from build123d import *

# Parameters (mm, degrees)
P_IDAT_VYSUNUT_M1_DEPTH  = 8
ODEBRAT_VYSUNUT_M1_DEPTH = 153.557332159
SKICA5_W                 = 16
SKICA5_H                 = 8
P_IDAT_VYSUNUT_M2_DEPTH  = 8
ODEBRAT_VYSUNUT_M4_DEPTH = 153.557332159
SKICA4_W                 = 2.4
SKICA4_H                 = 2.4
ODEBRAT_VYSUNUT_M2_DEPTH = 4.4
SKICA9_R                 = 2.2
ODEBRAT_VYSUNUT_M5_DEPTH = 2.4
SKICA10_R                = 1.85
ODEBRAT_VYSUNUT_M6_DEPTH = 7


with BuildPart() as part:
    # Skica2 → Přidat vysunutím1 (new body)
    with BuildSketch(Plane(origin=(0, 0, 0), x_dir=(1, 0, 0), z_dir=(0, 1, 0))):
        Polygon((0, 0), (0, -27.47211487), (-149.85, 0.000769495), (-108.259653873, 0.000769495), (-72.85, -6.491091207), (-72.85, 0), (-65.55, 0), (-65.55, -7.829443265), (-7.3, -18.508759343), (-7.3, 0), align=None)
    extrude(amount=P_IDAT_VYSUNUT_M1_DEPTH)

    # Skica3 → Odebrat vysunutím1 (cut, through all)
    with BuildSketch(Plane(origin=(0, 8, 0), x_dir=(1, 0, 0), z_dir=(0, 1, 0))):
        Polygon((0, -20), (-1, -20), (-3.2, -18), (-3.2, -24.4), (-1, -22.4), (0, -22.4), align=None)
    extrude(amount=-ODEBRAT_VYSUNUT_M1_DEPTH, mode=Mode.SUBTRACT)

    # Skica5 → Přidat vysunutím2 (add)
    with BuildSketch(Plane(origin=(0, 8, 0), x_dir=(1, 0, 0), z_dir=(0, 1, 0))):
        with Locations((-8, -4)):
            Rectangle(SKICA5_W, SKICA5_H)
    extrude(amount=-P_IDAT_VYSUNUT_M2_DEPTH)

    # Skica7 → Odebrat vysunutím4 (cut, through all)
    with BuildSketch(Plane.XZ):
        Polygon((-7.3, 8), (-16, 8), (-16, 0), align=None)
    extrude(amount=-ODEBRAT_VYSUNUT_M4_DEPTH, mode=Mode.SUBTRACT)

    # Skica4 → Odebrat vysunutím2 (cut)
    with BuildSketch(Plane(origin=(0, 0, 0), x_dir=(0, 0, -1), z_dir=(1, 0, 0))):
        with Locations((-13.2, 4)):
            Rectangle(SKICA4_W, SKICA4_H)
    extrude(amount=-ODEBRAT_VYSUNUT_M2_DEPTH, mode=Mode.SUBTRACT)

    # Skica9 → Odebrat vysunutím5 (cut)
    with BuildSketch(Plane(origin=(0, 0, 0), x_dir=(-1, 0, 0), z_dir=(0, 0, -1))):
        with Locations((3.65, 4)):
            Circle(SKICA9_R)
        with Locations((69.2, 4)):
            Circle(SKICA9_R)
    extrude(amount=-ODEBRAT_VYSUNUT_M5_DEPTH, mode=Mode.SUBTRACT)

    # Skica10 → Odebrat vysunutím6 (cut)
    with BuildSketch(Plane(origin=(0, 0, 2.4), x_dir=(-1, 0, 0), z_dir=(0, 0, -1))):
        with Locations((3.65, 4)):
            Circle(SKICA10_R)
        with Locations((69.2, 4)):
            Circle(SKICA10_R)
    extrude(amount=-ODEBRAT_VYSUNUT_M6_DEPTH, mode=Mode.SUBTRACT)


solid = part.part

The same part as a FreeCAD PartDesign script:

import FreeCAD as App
import Part
import Sketcher
Q = App.Units.Quantity

doc = App.newDocument("Part")
body = doc.addObject("PartDesign::Body", "Body")

sketch1 = body.newObject("Sketcher::SketchObject", "Sketch")
sketch1.AttachmentSupport = (doc.getObject("XZ_Plane"), [""])
sketch1.MapMode = "FlatFace"
sketch1.addGeometry(Part.LineSegment(App.Vector(0, 27, 0), App.Vector(0, 0, 0)), False)
sketch1.addGeometry(Part.LineSegment(App.Vector(0, 0, 0), App.Vector(-7, 0, 0)), False)
sketch1.addGeometry(Part.LineSegment(App.Vector(-7, 0, 0), App.Vector(-7, 19, 0)), False)
sketch1.addGeometry(Part.LineSegment(App.Vector(-7, 19, 0), App.Vector(-66, 8, 0)), False)
sketch1.addGeometry(Part.LineSegment(App.Vector(-66, 8, 0), App.Vector(-66, 0, 0)), False)
sketch1.addGeometry(Part.LineSegment(App.Vector(-66, 0, 0), App.Vector(-73, 0, 0)), False)
sketch1.addGeometry(Part.LineSegment(App.Vector(-73, 0, 0), App.Vector(-73, 6, 0)), False)
sketch1.addGeometry(Part.LineSegment(App.Vector(-73, 6, 0), App.Vector(-108, 0, 0)), False)
sketch1.addGeometry(Part.LineSegment(App.Vector(-108, 0, 0), App.Vector(-150, 0, 0)), False)
sketch1.addGeometry(Part.LineSegment(App.Vector(-150, 0, 0), App.Vector(0, 27, 0)), False)
sketch1.addConstraint(Sketcher.Constraint("Coincident", 0, 2, 1, 1))
sketch1.addConstraint(Sketcher.Constraint("Coincident", 1, 2, 2, 1))
sketch1.addConstraint(Sketcher.Constraint("Coincident", 2, 2, 3, 1))
sketch1.addConstraint(Sketcher.Constraint("Coincident", 3, 2, 4, 1))
sketch1.addConstraint(Sketcher.Constraint("Coincident", 4, 2, 5, 1))
sketch1.addConstraint(Sketcher.Constraint("Coincident", 5, 2, 6, 1))
sketch1.addConstraint(Sketcher.Constraint("Coincident", 6, 2, 7, 1))
sketch1.addConstraint(Sketcher.Constraint("Coincident", 7, 2, 8, 1))
sketch1.addConstraint(Sketcher.Constraint("Coincident", 8, 2, 9, 1))
sketch1.addConstraint(Sketcher.Constraint("Coincident", 9, 2, 0, 1))
sketch1.addConstraint(Sketcher.Constraint("Vertical", 0))
sketch1.addConstraint(Sketcher.Constraint("Horizontal", 1))
sketch1.addConstraint(Sketcher.Constraint("Vertical", 2))
sketch1.addConstraint(Sketcher.Constraint("Vertical", 4))
sketch1.addConstraint(Sketcher.Constraint("Horizontal", 5))
sketch1.addConstraint(Sketcher.Constraint("Vertical", 6))
sketch1.addConstraint(Sketcher.Constraint("Horizontal", 8))
sketch1.addConstraint(Sketcher.Constraint("Coincident", 0, 2, -1, 1))
sketch1.addConstraint(Sketcher.Constraint("PointOnObject", 4, 2, -1))
sketch1.addConstraint(Sketcher.Constraint("Parallel", 3, 7))
sketch1.addConstraint(Sketcher.Constraint("Parallel", 7, 9))
sketch1.addConstraint(Sketcher.Constraint("Equal", 1, 5))
sketch1.addConstraint(Sketcher.Constraint("DistanceX", 1, 2, 1, 1, Q("7.3 mm")))
sketch1.addConstraint(Sketcher.Constraint("DistanceX", 8, 2, 5, 2, Q("77 mm")))
sketch1.addConstraint(Sketcher.Constraint("DistanceX", 3, 2, -1, 1, Q("65.55 mm")))
sketch1.addConstraint(Sketcher.Constraint("DistanceY", 2, 1, 2, 2, Q("18.508759 mm")))
sketch1.addConstraint(Sketcher.Constraint("DistanceY", 6, 1, 6, 2, Q("6.491091 mm")))
sketch1.addConstraint(Sketcher.Constraint("Distance", 3, Q("59.22086 mm")))
sketch1.addConstraint(Sketcher.Constraint("Distance", 7, Q("35.999831 mm")))
pad1 = body.newObject("PartDesign::Pad", "Pad")
pad1.Profile = sketch1
pad1.Length = 8
pad1.Reversed = True

sketch2 = body.newObject("Sketcher::SketchObject", "Sketch001")
sketch2.AttachmentSupport = (doc.getObject("XZ_Plane"), [""])
sketch2.MapMode = "FlatFace"
sketch2.AttachmentOffset = App.Placement(App.Vector(0, 0, -8), App.Rotation())
sketch2.addGeometry(Part.LineSegment(App.Vector(0, 20, 0), App.Vector(-1, 20, 0)), False)
sketch2.addGeometry(Part.LineSegment(App.Vector(-1, 20, 0), App.Vector(-3.2, 18, 0)), False)
sketch2.addGeometry(Part.LineSegment(App.Vector(-3.2, 18, 0), App.Vector(-3.2, 24.4, 0)), False)
sketch2.addGeometry(Part.LineSegment(App.Vector(-3.2, 24.4, 0), App.Vector(-1, 22.4, 0)), False)
sketch2.addGeometry(Part.LineSegment(App.Vector(-1, 22.4, 0), App.Vector(0, 22.4, 0)), False)
sketch2.addGeometry(Part.LineSegment(App.Vector(0, 22.4, 0), App.Vector(0, 20, 0)), False)
sketch2.addConstraint(Sketcher.Constraint("Coincident", 0, 2, 1, 1))
sketch2.addConstraint(Sketcher.Constraint("Coincident", 1, 2, 2, 1))
sketch2.addConstraint(Sketcher.Constraint("Coincident", 2, 2, 3, 1))
sketch2.addConstraint(Sketcher.Constraint("Coincident", 3, 2, 4, 1))
sketch2.addConstraint(Sketcher.Constraint("Coincident", 4, 2, 5, 1))
sketch2.addConstraint(Sketcher.Constraint("Coincident", 5, 2, 0, 1))
sketch2.addConstraint(Sketcher.Constraint("Horizontal", 0))
sketch2.addConstraint(Sketcher.Constraint("Vertical", 2))
sketch2.addConstraint(Sketcher.Constraint("Horizontal", 4))
sketch2.addConstraint(Sketcher.Constraint("Vertical", 5))
sketch2.addConstraint(Sketcher.Constraint("PointOnObject", 4, 2, -2))
sketch2.addConstraint(Sketcher.Constraint("Vertical", 0, 2, 3, 2))
sketch2.addConstraint(Sketcher.Constraint("Equal", 1, 3))
sketch2.addConstraint(Sketcher.Constraint("DistanceX", 0, 2, 0, 1, Q("1 mm")))
sketch2.addConstraint(Sketcher.Constraint("DistanceY", 2, 1, 2, 2, Q("6.4 mm")))
sketch2.addConstraint(Sketcher.Constraint("DistanceY", 5, 2, 5, 1, Q("2.4 mm")))
sketch2.addConstraint(Sketcher.Constraint("DistanceY", -1, 1, 0, 2, Q("20 mm")))
sketch2.addConstraint(Sketcher.Constraint("DistanceX", 1, 2, -1, 1, Q("3.2 mm")))
pocket1 = body.newObject("PartDesign::Pocket", "Pocket")
pocket1.Profile = sketch2
pocket1.Type = "ThroughAll"
pocket1.Reversed = True

sketch3 = body.newObject("Sketcher::SketchObject", "Sketch002")
sketch3.AttachmentSupport = (doc.getObject("XZ_Plane"), [""])
sketch3.MapMode = "FlatFace"
sketch3.AttachmentOffset = App.Placement(App.Vector(0, 0, -8), App.Rotation())
sketch3.addGeometry(Part.LineSegment(App.Vector(-16, 0, 0), App.Vector(-16, 8, 0)), False)
sketch3.addGeometry(Part.LineSegment(App.Vector(-16, 8, 0), App.Vector(0, 8, 0)), False)
sketch3.addGeometry(Part.LineSegment(App.Vector(0, 8, 0), App.Vector(0, 0, 0)), False)
sketch3.addGeometry(Part.LineSegment(App.Vector(0, 0, 0), App.Vector(-16, 0, 0)), False)
sketch3.addConstraint(Sketcher.Constraint("Coincident", 0, 2, 1, 1))
sketch3.addConstraint(Sketcher.Constraint("Coincident", 1, 2, 2, 1))
sketch3.addConstraint(Sketcher.Constraint("Coincident", 2, 2, 3, 1))
sketch3.addConstraint(Sketcher.Constraint("Coincident", 3, 2, 0, 1))
sketch3.addConstraint(Sketcher.Constraint("Vertical", 0))
sketch3.addConstraint(Sketcher.Constraint("Horizontal", 1))
sketch3.addConstraint(Sketcher.Constraint("Vertical", 2))
sketch3.addConstraint(Sketcher.Constraint("Horizontal", 3))
sketch3.addConstraint(Sketcher.Constraint("Coincident", 2, 2, -1, 1))
sketch3.addConstraint(Sketcher.Constraint("DistanceX", 1, 1, 1, 2, Q("16 mm")))
sketch3.addConstraint(Sketcher.Constraint("DistanceY", 0, 1, 0, 2, Q("8 mm")))
pad2 = body.newObject("PartDesign::Pad", "Pad001")
pad2.Profile = sketch3
pad2.Length = 8

sketch4 = body.newObject("Sketcher::SketchObject", "Sketch003")
sketch4.AttachmentSupport = (doc.getObject("XZ_Plane"), [""])
sketch4.MapMode = "FlatFace"
sketch4.addGeometry(Part.LineSegment(App.Vector(-7, 8, 0), App.Vector(-16, 8, 0)), False)
sketch4.addGeometry(Part.LineSegment(App.Vector(-16, 8, 0), App.Vector(-16, 0, 0)), False)
sketch4.addGeometry(Part.LineSegment(App.Vector(-16, 0, 0), App.Vector(-7, 8, 0)), False)
sketch4.addConstraint(Sketcher.Constraint("Coincident", 0, 2, 1, 1))
sketch4.addConstraint(Sketcher.Constraint("Coincident", 1, 2, 2, 1))
sketch4.addConstraint(Sketcher.Constraint("Coincident", 2, 2, 0, 1))
sketch4.addConstraint(Sketcher.Constraint("Horizontal", 0))
sketch4.addConstraint(Sketcher.Constraint("Vertical", 1))
sketch4.addConstraint(Sketcher.Constraint("PointOnObject", 1, 2, -1))
sketch4.addConstraint(Sketcher.Constraint("DistanceY", 1, 2, 1, 1, Q("8 mm")))
sketch4.addConstraint(Sketcher.Constraint("DistanceX", 0, 2, 0, 1, Q("8.7 mm")))
sketch4.addConstraint(Sketcher.Constraint("DistanceX", 0, 2, -1, 1, Q("16 mm")))
pocket2 = body.newObject("PartDesign::Pocket", "Pocket001")
pocket2.Profile = sketch4
pocket2.Type = "ThroughAll"

sketch5 = body.newObject("Sketcher::SketchObject", "Sketch004")
sketch5.AttachmentSupport = (doc.getObject("YZ_Plane"), [""])
sketch5.MapMode = "FlatFace"
sketch5.addGeometry(Part.LineSegment(App.Vector(5.2, 14.4, 0), App.Vector(2.8, 14.4, 0)), False)
sketch5.addGeometry(Part.LineSegment(App.Vector(2.8, 14.4, 0), App.Vector(2.8, 12, 0)), False)
sketch5.addGeometry(Part.LineSegment(App.Vector(2.8, 12, 0), App.Vector(5.2, 12, 0)), False)
sketch5.addGeometry(Part.LineSegment(App.Vector(5.2, 12, 0), App.Vector(5.2, 14.4, 0)), False)
sketch5.addConstraint(Sketcher.Constraint("Coincident", 0, 2, 1, 1))
sketch5.addConstraint(Sketcher.Constraint("Coincident", 1, 2, 2, 1))
sketch5.addConstraint(Sketcher.Constraint("Coincident", 2, 2, 3, 1))
sketch5.addConstraint(Sketcher.Constraint("Coincident", 3, 2, 0, 1))
sketch5.addConstraint(Sketcher.Constraint("Horizontal", 0))
sketch5.addConstraint(Sketcher.Constraint("Vertical", 1))
sketch5.addConstraint(Sketcher.Constraint("Horizontal", 2))
sketch5.addConstraint(Sketcher.Constraint("Vertical", 3))
sketch5.addConstraint(Sketcher.Constraint("Equal", 2, 1))
sketch5.addConstraint(Sketcher.Constraint("DistanceX", 0, 2, 0, 1, Q("2.4 mm")))
sketch5.addConstraint(Sketcher.Constraint("DistanceY", -1, 1, 1, 2, Q("12 mm")))
sketch5.addConstraint(Sketcher.Constraint("DistanceX", -1, 1, 0, 2, Q("2.8 mm")))
pocket3 = body.newObject("PartDesign::Pocket", "Pocket002")
pocket3.Profile = sketch5
pocket3.Length = 4.4

sketch6 = body.newObject("Sketcher::SketchObject", "Sketch005")
sketch6.AttachmentSupport = (doc.getObject("XY_Plane"), [""])
sketch6.MapMode = "FlatFace"
sketch6.addGeometry(Part.Circle(App.Vector(-3.6, 4, 0), App.Vector(0, 0, 1), 2.2), False)
sketch6.addGeometry(Part.Circle(App.Vector(-69.2, 4, 0), App.Vector(0, 0, 1), 2.2), False)
sketch6.addConstraint(Sketcher.Constraint("Equal", 0, 1))
sketch6.addConstraint(Sketcher.Constraint("Horizontal", 0, 3, 1, 3))
sketch6.addConstraint(Sketcher.Constraint("Diameter", 0, Q("4.4 mm")))
sketch6.addConstraint(Sketcher.Constraint("DistanceY", -1, 1, 0, 3, Q("4 mm")))
sketch6.addConstraint(Sketcher.Constraint("DistanceX", 1, 3, -1, 1, Q("69.2 mm")))
sketch6.addConstraint(Sketcher.Constraint("DistanceX", 0, 3, -1, 1, Q("3.65 mm")))
pocket4 = body.newObject("PartDesign::Pocket", "Pocket003")
pocket4.Profile = sketch6
pocket4.Length = 2.4
pocket4.Reversed = True

sketch7 = body.newObject("Sketcher::SketchObject", "Sketch006")
sketch7.AttachmentSupport = (doc.getObject("XY_Plane"), [""])
sketch7.MapMode = "FlatFace"
sketch7.AttachmentOffset = App.Placement(App.Vector(0, 0, 2.4), App.Rotation())
sketch7.addGeometry(Part.Circle(App.Vector(-3.6, 4, 0), App.Vector(0, 0, 1), 1.9), False)
sketch7.addGeometry(Part.Circle(App.Vector(-69.2, 4, 0), App.Vector(0, 0, 1), 1.9), False)
sketch7.addConstraint(Sketcher.Constraint("Equal", 0, 1))
sketch7.addConstraint(Sketcher.Constraint("Horizontal", 0, 3, 1, 3))
sketch7.addConstraint(Sketcher.Constraint("Diameter", 0, Q("3.7 mm")))
sketch7.addConstraint(Sketcher.Constraint("DistanceY", -1, 1, 0, 3, Q("4 mm")))
sketch7.addConstraint(Sketcher.Constraint("DistanceX", 1, 3, -1, 1, Q("69.2 mm")))
sketch7.addConstraint(Sketcher.Constraint("DistanceX", 0, 3, -1, 1, Q("3.65 mm")))
pocket5 = body.newObject("PartDesign::Pocket", "Pocket004")
pocket5.Profile = sketch7
pocket5.Length = 7
pocket5.Reversed = True

doc.recompute()
